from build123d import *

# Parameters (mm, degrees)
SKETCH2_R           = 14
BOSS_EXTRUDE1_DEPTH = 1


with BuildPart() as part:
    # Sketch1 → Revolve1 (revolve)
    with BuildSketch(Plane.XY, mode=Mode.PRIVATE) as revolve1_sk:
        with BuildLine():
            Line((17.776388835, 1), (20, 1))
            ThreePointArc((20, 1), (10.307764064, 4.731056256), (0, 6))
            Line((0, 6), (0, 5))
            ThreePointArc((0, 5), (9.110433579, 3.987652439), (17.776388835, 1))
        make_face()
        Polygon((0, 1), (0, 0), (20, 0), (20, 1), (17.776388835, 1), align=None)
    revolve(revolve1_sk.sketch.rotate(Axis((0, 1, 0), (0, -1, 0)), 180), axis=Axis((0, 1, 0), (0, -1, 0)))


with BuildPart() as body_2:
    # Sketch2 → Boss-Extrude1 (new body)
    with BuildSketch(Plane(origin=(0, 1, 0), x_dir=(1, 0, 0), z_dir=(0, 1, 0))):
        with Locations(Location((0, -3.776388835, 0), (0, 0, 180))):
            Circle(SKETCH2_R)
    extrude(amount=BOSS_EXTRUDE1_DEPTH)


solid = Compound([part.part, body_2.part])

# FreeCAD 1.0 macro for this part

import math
import FreeCAD as App
import Part
import Sketcher

doc = App.newDocument("Part")
body = doc.addObject("PartDesign::Body", "Body")

# Sketch on XY plane
sketch1 = body.newObject("Sketcher::SketchObject", "Sketch")
sketch1.AttachmentSupport = (doc.getObject("XY_Plane"), [""])
sketch1.MapMode = "FlatFace"
sketch1.addGeometry([
    Part.ArcOfCircle(Part.Circle(App.Vector(0, -36.5, 0), App.Vector(0, 0, 1), 42.5), math.radians(61.927513), math.radians(90)),  # 0
    Part.LineSegment(App.Vector(0, 6, 0), App.Vector(0, 5, 0)),  # 1
    Part.ArcOfCircle(Part.Circle(App.Vector(0, -36.5, 0), App.Vector(0, 0, 1), 41.5), math.radians(64.637316), math.radians(90)),  # 2
    Part.LineSegment(App.Vector(17.776389, 1, 0), App.Vector(0, 1, 0)),  # 3
    Part.LineSegment(App.Vector(0, 1, 0), App.Vector(0, 0, 0)),  # 4
    Part.LineSegment(App.Vector(0, 0, 0), App.Vector(20, 0, 0)),  # 5
    Part.LineSegment(App.Vector(20, 0, 0), App.Vector(20, 1, 0)),  # 6
], False)
sketch1.addConstraint([
    Sketcher.Constraint("Coincident", 0, 2, 1, 1),
    Sketcher.Constraint("Coincident", 1, 2, 2, 2),
    Sketcher.Constraint("Coincident", 2, 1, 3, 1),
    Sketcher.Constraint("Coincident", 3, 2, 4, 1),
    Sketcher.Constraint("Coincident", 4, 2, 5, 1),
    Sketcher.Constraint("Coincident", 5, 2, 6, 1),
    Sketcher.Constraint("Coincident", 6, 2, 0, 1),
    Sketcher.Constraint("Vertical", 1),
    Sketcher.Constraint("Horizontal", 3),
    Sketcher.Constraint("Vertical", 4),
    Sketcher.Constraint("Horizontal", 5),
    Sketcher.Constraint("Vertical", 6),
    Sketcher.Constraint("Coincident", 4, 2, -1, 1),
    Sketcher.Constraint("Coincident", 2, 3, 0, 3),
    Sketcher.Constraint("PointOnObject", 0, 3, -2),
    Sketcher.Constraint("PointOnObject", 0, 2, -2),
    Sketcher.Constraint("Horizontal", 3, 2, 6, 2),
    Sketcher.Constraint("Equal", 1, 4),
    Sketcher.Constraint("Radius", 0, 42.5),
    Sketcher.Constraint("Radius", 2, 41.5),
    Sketcher.Constraint("DistanceX", 5, 1, 5, 2, 20.0),
])
revolution = body.newObject("PartDesign::Revolution", "Revolution")
revolution.Profile = sketch1
revolution.ReferenceAxis = (sketch1, ["V_Axis"])
revolution.Angle = 360
body2 = doc.addObject("PartDesign::Body", "Body001")

# Sketch on XZ plane
sketch2 = body2.newObject("Sketcher::SketchObject", "Sketch001")
sketch2.AttachmentSupport = (doc.getObject("XZ_Plane001"), [""])
sketch2.MapMode = "FlatFace"
sketch2.AttachmentOffset = App.Placement(App.Vector(0, 0, -1), App.Rotation())
sketch2.addGeometry(Part.Circle(App.Vector(0, 3.776389, 0), App.Vector(0, 0, 1), 14), False)
sketch2.addConstraint([
    Sketcher.Constraint("PointOnObject", 0, 3, -2),
    Sketcher.Constraint("Diameter", 0, 28.0),
    Sketcher.Constraint("DistanceY", -1, 1, 0, 3, 3.776389),
])
pad1 = body2.newObject("PartDesign::Pad", "Pad")
pad1.Profile = sketch2
pad1.Length = 1
pad1.Reversed = True

doc.recompute()
